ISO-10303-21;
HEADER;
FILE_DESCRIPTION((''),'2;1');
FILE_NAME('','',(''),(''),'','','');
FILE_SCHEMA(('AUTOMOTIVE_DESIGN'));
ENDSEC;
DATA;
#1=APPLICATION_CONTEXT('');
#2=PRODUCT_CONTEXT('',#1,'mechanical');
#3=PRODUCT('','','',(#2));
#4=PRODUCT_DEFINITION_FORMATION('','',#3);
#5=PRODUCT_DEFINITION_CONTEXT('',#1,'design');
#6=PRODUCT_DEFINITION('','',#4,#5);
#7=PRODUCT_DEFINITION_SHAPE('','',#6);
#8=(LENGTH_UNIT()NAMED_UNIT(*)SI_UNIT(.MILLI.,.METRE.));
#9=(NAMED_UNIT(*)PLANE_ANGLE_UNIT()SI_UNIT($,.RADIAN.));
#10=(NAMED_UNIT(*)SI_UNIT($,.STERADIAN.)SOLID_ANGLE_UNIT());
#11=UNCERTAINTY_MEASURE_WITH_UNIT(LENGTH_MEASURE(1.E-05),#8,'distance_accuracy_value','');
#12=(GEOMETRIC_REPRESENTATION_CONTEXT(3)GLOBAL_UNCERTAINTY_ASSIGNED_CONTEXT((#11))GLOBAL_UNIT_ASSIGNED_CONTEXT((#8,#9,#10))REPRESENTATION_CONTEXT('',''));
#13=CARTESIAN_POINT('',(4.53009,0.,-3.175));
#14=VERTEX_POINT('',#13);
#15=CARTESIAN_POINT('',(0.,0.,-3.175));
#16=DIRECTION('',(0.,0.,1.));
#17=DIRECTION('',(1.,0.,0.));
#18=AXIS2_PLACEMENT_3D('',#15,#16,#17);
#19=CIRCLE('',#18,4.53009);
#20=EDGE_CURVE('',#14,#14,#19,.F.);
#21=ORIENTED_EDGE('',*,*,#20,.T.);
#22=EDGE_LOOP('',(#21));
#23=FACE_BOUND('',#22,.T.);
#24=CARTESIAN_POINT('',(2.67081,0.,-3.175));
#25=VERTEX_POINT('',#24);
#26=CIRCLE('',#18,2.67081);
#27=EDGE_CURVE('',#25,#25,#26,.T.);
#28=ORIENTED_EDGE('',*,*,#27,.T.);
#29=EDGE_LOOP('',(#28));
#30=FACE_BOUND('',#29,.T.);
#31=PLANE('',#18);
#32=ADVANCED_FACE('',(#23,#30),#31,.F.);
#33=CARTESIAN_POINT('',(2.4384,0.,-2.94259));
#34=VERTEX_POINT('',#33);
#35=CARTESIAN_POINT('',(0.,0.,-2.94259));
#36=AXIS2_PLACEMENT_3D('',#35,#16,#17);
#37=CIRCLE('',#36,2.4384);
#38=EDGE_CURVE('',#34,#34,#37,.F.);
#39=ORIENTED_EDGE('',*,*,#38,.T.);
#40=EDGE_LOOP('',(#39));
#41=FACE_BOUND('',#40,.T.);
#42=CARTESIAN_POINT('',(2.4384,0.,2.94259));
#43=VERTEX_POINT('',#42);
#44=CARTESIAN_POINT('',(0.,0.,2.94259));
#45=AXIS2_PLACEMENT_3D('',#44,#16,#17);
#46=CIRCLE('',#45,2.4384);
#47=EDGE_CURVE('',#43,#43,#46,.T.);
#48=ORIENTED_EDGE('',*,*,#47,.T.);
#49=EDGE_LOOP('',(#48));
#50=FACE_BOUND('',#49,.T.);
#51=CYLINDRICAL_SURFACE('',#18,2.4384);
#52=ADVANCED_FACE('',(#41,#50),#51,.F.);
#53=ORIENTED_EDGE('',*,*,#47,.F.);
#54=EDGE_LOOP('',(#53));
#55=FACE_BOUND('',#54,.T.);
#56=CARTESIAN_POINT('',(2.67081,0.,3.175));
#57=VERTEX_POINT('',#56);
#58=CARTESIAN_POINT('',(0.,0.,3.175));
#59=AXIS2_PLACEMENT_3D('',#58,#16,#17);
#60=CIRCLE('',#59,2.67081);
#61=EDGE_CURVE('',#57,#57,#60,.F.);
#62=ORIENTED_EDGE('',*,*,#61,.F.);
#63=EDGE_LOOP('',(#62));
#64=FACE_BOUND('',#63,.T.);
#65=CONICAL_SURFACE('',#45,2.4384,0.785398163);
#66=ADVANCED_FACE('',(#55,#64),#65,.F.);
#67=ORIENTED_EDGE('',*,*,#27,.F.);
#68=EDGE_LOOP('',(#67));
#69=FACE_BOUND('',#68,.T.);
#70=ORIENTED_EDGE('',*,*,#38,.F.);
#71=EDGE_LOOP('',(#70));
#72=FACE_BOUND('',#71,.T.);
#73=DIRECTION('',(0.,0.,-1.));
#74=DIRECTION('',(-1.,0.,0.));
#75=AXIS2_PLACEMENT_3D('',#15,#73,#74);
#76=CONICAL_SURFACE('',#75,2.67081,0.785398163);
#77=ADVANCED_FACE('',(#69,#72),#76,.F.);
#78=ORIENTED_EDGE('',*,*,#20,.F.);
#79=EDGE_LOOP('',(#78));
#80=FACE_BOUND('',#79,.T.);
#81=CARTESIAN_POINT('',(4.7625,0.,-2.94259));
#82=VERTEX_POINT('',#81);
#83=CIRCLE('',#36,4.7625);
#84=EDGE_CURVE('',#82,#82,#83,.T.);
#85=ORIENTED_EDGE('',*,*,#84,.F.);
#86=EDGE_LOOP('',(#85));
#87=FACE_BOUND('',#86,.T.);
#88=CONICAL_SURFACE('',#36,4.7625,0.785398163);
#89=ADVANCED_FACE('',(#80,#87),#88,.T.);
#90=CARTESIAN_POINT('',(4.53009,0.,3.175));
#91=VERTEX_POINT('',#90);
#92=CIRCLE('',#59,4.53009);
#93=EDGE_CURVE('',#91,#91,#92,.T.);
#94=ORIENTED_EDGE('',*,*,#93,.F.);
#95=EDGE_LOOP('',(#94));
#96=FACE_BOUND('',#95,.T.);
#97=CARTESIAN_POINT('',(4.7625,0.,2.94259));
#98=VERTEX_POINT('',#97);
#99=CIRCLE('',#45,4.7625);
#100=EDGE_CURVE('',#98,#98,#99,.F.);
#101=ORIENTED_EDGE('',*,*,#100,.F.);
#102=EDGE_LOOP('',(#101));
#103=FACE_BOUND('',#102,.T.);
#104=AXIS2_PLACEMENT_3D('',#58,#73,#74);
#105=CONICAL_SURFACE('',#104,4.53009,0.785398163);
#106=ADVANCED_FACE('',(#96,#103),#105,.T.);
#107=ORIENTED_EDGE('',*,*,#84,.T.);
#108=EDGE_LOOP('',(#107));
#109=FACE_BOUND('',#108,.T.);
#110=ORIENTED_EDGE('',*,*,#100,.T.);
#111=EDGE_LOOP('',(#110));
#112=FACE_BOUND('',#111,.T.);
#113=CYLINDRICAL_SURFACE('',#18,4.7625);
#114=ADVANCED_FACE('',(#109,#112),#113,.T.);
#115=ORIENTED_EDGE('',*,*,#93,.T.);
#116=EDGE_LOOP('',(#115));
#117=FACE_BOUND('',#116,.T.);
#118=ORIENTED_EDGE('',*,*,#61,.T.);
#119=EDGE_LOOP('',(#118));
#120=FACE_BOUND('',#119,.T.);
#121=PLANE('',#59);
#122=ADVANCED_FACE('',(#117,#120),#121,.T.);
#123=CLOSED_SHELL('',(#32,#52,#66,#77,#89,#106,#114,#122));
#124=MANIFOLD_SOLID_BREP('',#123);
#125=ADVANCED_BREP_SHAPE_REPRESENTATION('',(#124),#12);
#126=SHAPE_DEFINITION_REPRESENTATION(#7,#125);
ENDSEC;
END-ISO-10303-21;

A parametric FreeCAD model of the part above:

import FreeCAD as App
import Part
import Sketcher
from FreeCAD import Vector
Q = App.Units.Quantity


def edges_at(feature, points):
    """Names of the edges that pass closest to the given points."""
    edges = feature.Shape.Edges
    near = lambda p: min(range(len(edges)), key=lambda i: edges[i].distToShape(Part.Vertex(*p))[0])
    return sorted({f"Edge{near(p) + 1}" for p in points})

doc = App.newDocument("Part")
body = doc.addObject("PartDesign::Body", "Body")

# Sketch on XY plane
sketch1 = body.newObject("Sketcher::SketchObject", "Sketch")
sketch1.AttachmentSupport = (doc.getObject("XY_Plane"), [""])
sketch1.MapMode = "FlatFace"
sketch1.addGeometry([
    Part.Circle(Vector(0, 0, 0), Vector(0, 0, 1), 4.8),
    Part.Circle(Vector(0, 0, 0), Vector(0, 0, 1), 2.4),
], False)
sketch1.addConstraint([
    Sketcher.Constraint("Coincident", 0, 3, -1, 1),
    Sketcher.Constraint("Coincident", 1, 3, -1, 1),
    Sketcher.Constraint("Diameter", 0, Q("0.375 in")),
    Sketcher.Constraint("Diameter", 1, Q("0.192 in")),
])
pad1 = body.newObject("PartDesign::Pad", "Pad")
pad1.Profile = sketch1
pad1.Type = "TwoLengths"
pad1.Length = Q("0.125 in")
pad1.Length2 = Q("0.125 in")
doc.recompute()

chamfer = body.newObject("PartDesign::Chamfer", "Chamfer")
chamfer.Base = (pad1, edges_at(pad1, [
    (-4.763, 0, -3.175),
    (-2.438, 0, -3.175),
    (-4.763, 0, 3.175),
    (-2.438, 0, 3.175),
]))
chamfer.Size = 0.23241

doc.recompute()
